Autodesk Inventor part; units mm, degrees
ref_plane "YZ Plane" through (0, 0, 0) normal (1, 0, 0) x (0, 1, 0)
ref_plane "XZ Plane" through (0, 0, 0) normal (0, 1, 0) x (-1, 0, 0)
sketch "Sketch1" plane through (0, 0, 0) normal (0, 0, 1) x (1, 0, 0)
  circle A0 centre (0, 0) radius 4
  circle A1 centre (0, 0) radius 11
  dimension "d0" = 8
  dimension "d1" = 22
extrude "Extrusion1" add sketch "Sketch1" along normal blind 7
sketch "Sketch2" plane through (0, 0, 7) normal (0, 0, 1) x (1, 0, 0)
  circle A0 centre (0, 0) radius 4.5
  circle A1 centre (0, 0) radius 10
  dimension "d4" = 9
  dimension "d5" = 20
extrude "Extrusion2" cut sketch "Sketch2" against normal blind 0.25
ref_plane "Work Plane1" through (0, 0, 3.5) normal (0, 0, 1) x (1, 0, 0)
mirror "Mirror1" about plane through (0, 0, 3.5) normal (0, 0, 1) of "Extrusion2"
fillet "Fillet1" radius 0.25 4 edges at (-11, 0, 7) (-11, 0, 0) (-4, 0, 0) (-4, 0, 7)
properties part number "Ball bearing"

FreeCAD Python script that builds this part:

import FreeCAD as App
import Part
import Sketcher
from FreeCAD import Vector
Q = App.Units.Quantity


def edges_at(feature, points):
    """Names of the edges that pass closest to the given points."""
    edges = feature.Shape.Edges
    near = lambda p: min(range(len(edges)), key=lambda i: edges[i].distToShape(Part.Vertex(*p))[0])
    return sorted({f"Edge{near(p) + 1}" for p in points})

doc = App.newDocument("Part")
body = doc.addObject("PartDesign::Body", "Body")

sketch1 = body.newObject("Sketcher::SketchObject", "Sketch")
sketch1.AttachmentSupport = (doc.getObject("XY_Plane"), [""])
sketch1.MapMode = "FlatFace"
sketch1.addGeometry([
    Part.Circle(Vector(0, 0, 0), Vector(0, 0, 1), 11),
    Part.Circle(Vector(0, 0, 0), Vector(0, 0, 1), 4),
], False)
sketch1.addConstraint([
    Sketcher.Constraint("Coincident", 0, 3, -1, 1),
    Sketcher.Constraint("Coincident", 1, 3, -1, 1),
    Sketcher.Constraint("Diameter", 0, Q("22 mm")),
    Sketcher.Constraint("Diameter", 1, Q("8 mm")),
])
pad1 = body.newObject("PartDesign::Pad", "Pad")
pad1.Profile = sketch1
pad1.Length = 7

sketch2 = body.newObject("Sketcher::SketchObject", "Sketch001")
sketch2.AttachmentSupport = (doc.getObject("XY_Plane"), [""])
sketch2.MapMode = "FlatFace"
sketch2.AttachmentOffset = App.Placement(Vector(0, 0, 7), App.Rotation())
sketch2.addGeometry([
    Part.Circle(Vector(0, 0, 0), Vector(0, 0, 1), 10),
    Part.Circle(Vector(0, 0, 0), Vector(0, 0, 1), 4.5),
], False)
sketch2.addConstraint([
    Sketcher.Constraint("Coincident", 0, 3, -1, 1),
    Sketcher.Constraint("Coincident", 1, 3, -1, 1),
    Sketcher.Constraint("Diameter", 0, Q("20 mm")),
    Sketcher.Constraint("Diameter", 1, Q("9 mm")),
])
pocket1 = body.newObject("PartDesign::Pocket", "Pocket")
pocket1.Profile = sketch2
pocket1.Length = 0.25
doc.recompute()

datumplane = body.newObject("PartDesign::Plane", "DatumPlane")
datumplane.AttachmentSupport = (doc.getObject("XY_Plane"), [""])
datumplane.MapMode = "FlatFace"
datumplane.AttachmentOffset = App.Placement(Vector(0, 0, 3.5), App.Rotation())
mirrored = body.newObject("PartDesign::Mirrored", "Mirrored")
mirrored.Originals = [pocket1]
mirrored.MirrorPlane = (datumplane, [""])
body.Tip = mirrored
doc.recompute()

fillet = body.newObject("PartDesign::Fillet", "Fillet")
fillet.Base = (mirrored, edges_at(mirrored, [
    (-11, 0, 7),
    (-11, 0, 0),
    (-4, 0, 0),
    (-4, 0, 7),
]))
fillet.Radius = 0.25

doc.recompute()
